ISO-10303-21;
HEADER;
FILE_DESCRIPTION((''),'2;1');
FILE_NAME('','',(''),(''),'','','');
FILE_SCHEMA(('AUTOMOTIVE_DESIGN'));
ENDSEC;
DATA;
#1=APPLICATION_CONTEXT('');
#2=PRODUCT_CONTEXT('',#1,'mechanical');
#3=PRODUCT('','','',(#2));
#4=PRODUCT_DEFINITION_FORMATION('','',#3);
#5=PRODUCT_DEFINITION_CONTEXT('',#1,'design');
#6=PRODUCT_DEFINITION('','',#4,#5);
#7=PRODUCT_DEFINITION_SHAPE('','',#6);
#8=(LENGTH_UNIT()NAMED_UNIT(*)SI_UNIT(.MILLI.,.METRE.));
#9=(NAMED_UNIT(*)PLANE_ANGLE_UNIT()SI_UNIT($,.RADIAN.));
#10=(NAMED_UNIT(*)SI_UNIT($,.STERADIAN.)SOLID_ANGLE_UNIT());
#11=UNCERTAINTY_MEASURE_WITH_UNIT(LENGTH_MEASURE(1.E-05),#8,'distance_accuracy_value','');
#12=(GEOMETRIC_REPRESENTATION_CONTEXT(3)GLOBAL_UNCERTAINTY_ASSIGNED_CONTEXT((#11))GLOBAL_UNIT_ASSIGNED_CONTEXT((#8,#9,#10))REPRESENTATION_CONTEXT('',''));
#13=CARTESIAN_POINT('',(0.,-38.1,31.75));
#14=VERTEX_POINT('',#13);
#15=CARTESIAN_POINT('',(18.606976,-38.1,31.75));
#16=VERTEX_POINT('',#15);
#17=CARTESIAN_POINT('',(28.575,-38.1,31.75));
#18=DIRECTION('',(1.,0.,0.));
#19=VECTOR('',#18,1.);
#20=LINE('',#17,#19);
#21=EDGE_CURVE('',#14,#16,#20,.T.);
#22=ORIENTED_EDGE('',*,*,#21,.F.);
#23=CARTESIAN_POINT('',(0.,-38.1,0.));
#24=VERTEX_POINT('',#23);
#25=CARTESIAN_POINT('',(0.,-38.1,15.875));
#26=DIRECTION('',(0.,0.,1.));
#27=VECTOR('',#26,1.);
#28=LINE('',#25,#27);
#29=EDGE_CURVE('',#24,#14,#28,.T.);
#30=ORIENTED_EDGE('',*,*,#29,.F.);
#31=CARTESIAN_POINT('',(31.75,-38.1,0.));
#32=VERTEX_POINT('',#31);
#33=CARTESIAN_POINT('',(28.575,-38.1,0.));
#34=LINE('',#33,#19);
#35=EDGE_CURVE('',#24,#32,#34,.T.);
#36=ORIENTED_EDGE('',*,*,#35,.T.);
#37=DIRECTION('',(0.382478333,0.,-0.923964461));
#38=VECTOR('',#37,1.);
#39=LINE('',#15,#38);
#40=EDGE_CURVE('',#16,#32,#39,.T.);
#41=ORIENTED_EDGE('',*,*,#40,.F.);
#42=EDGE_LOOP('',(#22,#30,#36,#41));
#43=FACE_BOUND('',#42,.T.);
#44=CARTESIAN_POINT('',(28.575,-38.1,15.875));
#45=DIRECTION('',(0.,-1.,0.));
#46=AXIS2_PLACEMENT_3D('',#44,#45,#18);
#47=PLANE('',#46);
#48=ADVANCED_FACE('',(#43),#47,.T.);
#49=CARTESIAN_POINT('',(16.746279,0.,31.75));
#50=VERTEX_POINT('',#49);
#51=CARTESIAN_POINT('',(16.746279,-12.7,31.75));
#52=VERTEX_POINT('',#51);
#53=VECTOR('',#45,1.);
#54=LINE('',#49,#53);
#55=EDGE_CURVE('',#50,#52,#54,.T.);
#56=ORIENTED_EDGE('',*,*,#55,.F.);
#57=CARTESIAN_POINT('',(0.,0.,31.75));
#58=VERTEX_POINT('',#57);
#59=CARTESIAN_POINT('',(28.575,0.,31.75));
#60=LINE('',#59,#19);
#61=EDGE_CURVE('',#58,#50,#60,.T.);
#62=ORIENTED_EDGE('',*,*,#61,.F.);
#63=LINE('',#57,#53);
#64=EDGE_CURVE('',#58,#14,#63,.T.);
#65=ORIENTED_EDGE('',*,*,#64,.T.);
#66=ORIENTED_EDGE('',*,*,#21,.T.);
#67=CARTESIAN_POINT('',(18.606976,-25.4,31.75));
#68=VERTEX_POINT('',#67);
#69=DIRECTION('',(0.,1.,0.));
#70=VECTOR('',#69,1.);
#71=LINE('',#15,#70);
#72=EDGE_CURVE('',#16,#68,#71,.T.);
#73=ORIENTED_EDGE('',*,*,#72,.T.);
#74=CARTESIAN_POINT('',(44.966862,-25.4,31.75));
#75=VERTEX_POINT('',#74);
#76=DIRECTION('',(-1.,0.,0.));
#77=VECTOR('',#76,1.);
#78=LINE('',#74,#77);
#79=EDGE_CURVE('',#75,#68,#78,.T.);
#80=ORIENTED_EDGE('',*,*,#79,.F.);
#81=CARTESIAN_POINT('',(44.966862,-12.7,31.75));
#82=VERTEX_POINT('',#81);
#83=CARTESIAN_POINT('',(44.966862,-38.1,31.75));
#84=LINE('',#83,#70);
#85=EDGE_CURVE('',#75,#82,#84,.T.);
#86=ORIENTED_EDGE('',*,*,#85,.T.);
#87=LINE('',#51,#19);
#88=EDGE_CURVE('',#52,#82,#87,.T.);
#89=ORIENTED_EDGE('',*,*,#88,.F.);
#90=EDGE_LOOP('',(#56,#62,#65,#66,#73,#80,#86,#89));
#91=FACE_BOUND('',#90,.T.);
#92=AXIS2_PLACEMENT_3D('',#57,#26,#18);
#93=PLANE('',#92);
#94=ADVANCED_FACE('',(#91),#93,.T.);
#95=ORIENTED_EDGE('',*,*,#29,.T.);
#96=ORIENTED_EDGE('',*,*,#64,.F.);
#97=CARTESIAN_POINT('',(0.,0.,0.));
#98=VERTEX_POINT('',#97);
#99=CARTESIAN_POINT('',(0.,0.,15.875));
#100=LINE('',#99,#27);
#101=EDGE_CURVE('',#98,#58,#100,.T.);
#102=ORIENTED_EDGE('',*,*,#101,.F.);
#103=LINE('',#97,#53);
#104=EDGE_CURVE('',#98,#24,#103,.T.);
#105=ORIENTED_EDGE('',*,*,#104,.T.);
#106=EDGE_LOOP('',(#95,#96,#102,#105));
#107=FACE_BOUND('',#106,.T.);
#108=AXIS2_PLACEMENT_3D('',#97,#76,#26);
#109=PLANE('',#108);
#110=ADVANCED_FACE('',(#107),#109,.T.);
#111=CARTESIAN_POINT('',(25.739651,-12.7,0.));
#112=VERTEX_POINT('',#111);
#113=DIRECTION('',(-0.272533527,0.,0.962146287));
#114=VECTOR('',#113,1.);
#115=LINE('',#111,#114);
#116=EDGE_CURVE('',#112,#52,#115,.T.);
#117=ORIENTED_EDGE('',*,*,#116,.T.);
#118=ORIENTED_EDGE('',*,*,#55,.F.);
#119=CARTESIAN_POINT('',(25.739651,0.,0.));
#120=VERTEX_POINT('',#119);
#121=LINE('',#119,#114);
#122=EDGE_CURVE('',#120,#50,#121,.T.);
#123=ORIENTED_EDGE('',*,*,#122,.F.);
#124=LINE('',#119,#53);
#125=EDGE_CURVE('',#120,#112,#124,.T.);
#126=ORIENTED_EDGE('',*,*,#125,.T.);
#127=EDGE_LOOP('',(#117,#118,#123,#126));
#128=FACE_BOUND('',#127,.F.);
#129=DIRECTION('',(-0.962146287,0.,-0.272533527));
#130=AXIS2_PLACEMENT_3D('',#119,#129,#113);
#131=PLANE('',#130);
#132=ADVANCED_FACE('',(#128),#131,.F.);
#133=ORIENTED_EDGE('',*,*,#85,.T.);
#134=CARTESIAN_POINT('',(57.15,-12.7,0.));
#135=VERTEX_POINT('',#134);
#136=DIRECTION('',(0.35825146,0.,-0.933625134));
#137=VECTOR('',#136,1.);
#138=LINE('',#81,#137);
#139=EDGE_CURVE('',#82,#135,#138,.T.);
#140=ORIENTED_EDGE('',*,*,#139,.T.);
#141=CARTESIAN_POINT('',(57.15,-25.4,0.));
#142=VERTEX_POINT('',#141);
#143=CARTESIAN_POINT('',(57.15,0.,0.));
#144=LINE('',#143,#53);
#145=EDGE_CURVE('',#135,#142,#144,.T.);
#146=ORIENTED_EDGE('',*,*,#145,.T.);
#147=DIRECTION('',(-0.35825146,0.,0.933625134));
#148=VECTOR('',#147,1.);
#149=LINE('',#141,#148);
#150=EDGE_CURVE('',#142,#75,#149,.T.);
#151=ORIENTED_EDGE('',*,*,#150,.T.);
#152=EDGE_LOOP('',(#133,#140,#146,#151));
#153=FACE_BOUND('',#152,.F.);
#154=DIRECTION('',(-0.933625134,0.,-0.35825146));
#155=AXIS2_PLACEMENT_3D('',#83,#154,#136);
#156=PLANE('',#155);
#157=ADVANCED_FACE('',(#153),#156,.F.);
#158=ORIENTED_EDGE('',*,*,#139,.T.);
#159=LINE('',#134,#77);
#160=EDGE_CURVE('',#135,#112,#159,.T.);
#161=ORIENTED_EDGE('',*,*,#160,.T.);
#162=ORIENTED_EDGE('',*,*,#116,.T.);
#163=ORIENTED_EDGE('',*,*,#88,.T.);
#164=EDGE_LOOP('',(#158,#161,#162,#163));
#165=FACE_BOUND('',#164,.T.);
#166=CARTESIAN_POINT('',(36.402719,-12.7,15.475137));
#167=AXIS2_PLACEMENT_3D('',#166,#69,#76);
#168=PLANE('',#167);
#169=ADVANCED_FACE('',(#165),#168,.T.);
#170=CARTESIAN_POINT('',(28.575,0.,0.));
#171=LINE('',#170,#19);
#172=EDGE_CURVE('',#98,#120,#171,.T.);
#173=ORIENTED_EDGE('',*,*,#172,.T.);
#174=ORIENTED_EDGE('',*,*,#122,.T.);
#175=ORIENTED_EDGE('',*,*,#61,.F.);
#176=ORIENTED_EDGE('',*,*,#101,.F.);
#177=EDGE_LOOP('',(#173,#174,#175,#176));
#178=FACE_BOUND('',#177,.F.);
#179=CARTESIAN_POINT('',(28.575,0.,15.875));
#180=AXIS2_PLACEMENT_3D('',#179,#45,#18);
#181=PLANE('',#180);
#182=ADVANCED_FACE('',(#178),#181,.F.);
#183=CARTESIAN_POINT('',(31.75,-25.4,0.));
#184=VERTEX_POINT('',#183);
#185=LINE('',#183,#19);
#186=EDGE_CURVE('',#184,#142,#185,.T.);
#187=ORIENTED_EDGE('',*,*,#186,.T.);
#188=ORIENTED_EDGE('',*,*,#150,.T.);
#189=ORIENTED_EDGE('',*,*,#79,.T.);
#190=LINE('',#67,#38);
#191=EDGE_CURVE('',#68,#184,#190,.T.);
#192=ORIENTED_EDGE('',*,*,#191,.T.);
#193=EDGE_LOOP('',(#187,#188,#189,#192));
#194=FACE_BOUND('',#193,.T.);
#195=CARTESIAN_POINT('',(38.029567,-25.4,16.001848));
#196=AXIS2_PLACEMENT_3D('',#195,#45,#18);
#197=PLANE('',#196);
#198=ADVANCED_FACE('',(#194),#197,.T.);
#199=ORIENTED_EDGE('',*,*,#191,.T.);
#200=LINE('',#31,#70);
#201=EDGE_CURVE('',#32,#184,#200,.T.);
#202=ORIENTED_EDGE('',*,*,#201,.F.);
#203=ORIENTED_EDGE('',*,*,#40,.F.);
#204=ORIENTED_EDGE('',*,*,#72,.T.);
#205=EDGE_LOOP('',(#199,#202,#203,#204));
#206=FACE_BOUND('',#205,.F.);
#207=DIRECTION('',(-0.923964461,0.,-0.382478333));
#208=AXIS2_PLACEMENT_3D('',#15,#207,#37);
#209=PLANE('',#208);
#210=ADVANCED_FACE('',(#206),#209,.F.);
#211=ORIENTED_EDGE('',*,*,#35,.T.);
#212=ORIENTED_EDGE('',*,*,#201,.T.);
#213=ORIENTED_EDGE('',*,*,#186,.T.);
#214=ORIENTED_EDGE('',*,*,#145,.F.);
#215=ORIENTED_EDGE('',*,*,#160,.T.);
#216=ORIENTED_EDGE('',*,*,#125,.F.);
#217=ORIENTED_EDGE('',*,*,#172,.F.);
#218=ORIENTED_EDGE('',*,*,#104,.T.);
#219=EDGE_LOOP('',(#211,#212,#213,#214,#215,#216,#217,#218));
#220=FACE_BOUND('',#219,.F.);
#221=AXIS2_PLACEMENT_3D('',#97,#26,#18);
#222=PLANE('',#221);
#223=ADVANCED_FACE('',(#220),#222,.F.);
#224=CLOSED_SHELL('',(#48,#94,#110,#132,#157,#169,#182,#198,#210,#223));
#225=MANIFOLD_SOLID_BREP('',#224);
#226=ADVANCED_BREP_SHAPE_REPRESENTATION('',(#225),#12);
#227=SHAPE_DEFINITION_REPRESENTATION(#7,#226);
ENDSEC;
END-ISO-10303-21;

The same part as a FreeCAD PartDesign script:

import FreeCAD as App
import Part
import Sketcher
from FreeCAD import Vector
Q = App.Units.Quantity


def add_polygon(sketch, points):
    """Adds a closed chain of lines whose ends are joined by coincident constraints."""
    first, n = sketch.GeometryCount, len(points)
    for a, b in zip(points, points[1:] + points[:1]):
        sketch.addGeometry(Part.LineSegment(App.Vector(*a, 0), App.Vector(*b, 0)), False)
    for i in range(n):
        sketch.addConstraint(Sketcher.Constraint("Coincident", first + i, 2, first + (i + 1) % n, 1))

doc = App.newDocument("Part")
body = doc.addObject("PartDesign::Body", "Body")

sketch1 = body.newObject("Sketcher::SketchObject", "Sketch")
sketch1.AttachmentSupport = (doc.getObject("XZ_Plane"), [""])
sketch1.MapMode = "FlatFace"
add_polygon(sketch1, [(0, 31.75), (0, 0), (57.15, 0), (57.15, 31.75)])
sketch1.addConstraint([
    Sketcher.Constraint("Vertical", 0),
    Sketcher.Constraint("Horizontal", 1),
    Sketcher.Constraint("Vertical", 2),
    Sketcher.Constraint("Horizontal", 3),
    Sketcher.Constraint("Coincident", 0, 2, -1, 1),
    Sketcher.Constraint("DistanceX", 1, 1, 1, 2, Q("2.25 in")),
    Sketcher.Constraint("DistanceY", 0, 2, 0, 1, Q("1.25 in")),
])
pad1 = body.newObject("PartDesign::Pad", "Pad")
pad1.Profile = sketch1
pad1.Length = Q("1.5 in")

sketch2 = body.newObject("Sketcher::SketchObject", "Sketch001")
sketch2.AttachmentSupport = (doc.getObject("XZ_Plane"), [""])
sketch2.MapMode = "FlatFace"
sketch2.AttachmentOffset = App.Placement(Vector(0, 0, 1.5 * 25.4), App.Rotation())
add_polygon(sketch2, [(31.75, 0), (57.15, 0), (44.966862, 31.75), (18.606976, 31.75)])
sketch2.addConstraint([
    Sketcher.Constraint("Horizontal", 0),
    Sketcher.Constraint("Horizontal", 2),
    Sketcher.Constraint("PointOnObject", 0, 2, -1),
    Sketcher.Constraint("DistanceX", 0, 1, 0, 2, Q("1 in")),
    Sketcher.Constraint("DistanceX", -1, 1, 0, 2, Q("2.25 in")),
    Sketcher.Constraint("DistanceY", -1, 1, 1, 2, Q("1.25 in")),
    Sketcher.Constraint("DistanceX", 2, 2, 2, 1, Q("26.359886 mm")),
    Sketcher.Constraint("DistanceX", 3, 2, 1, 2, Q("13.216862 mm")),
])
pocket1 = body.newObject("PartDesign::Pocket", "Pocket")
pocket1.Profile = sketch2
pocket1.Length = Q("0.5 in")

sketch3 = body.newObject("Sketcher::SketchObject", "Sketch002")
sketch3.AttachmentSupport = (doc.getObject("XZ_Plane"), [""])
sketch3.MapMode = "FlatFace"
sketch3.AttachmentOffset = App.Placement(Vector(0, 0, 1.5 * 25.4), App.Rotation())
add_polygon(sketch3, [(57.15, 0), (57.15, 31.75), (44.966862, 31.75)])
sketch3.addConstraint([
    Sketcher.Constraint("Vertical", 0),
    Sketcher.Constraint("Horizontal", 1),
    Sketcher.Constraint("PointOnObject", 2, 2, -1),
    Sketcher.Constraint("DistanceY", 0, 1, 0, 2, Q("1.25 in")),
    Sketcher.Constraint("DistanceX", -1, 1, 0, 2, Q("2.25 in")),
    Sketcher.Constraint("DistanceX", 1, 2, 1, 1, Q("12.183138 mm")),
])
pocket2 = body.newObject("PartDesign::Pocket", "Pocket001")
pocket2.Profile = sketch3
pocket2.Length = Q("1.5 in")

sketch4 = body.newObject("Sketcher::SketchObject", "Sketch003")
sketch4.AttachmentSupport = (doc.getObject("XZ_Plane"), [""])
sketch4.MapMode = "FlatFace"
add_polygon(sketch4, [(25.739651, 0), (16.746279, 31.75), (44.966862, 31.75), (57.15, 0)])
sketch4.addConstraint([
    Sketcher.Constraint("Horizontal", 1),
    Sketcher.Constraint("Horizontal", 3),
    Sketcher.Constraint("PointOnObject", 2, 2, -1),
    Sketcher.Constraint("DistanceY", -1, 1, 0, 2, Q("1.25 in")),
    Sketcher.Constraint("DistanceX", -1, 1, 2, 2, Q("2.25 in")),
    Sketcher.Constraint("DistanceX", 3, 2, 3, 1, Q("31.410349 mm")),
    Sketcher.Constraint("Distance", 0, Q("32.99914 mm")),
    Sketcher.Constraint("DistanceX", 1, 1, 1, 2, Q("28.220583 mm")),
])
pocket3 = body.newObject("PartDesign::Pocket", "Pocket002")
pocket3.Profile = sketch4
pocket3.Length = Q("0.5 in")
pocket3.Reversed = True

doc.recompute()
